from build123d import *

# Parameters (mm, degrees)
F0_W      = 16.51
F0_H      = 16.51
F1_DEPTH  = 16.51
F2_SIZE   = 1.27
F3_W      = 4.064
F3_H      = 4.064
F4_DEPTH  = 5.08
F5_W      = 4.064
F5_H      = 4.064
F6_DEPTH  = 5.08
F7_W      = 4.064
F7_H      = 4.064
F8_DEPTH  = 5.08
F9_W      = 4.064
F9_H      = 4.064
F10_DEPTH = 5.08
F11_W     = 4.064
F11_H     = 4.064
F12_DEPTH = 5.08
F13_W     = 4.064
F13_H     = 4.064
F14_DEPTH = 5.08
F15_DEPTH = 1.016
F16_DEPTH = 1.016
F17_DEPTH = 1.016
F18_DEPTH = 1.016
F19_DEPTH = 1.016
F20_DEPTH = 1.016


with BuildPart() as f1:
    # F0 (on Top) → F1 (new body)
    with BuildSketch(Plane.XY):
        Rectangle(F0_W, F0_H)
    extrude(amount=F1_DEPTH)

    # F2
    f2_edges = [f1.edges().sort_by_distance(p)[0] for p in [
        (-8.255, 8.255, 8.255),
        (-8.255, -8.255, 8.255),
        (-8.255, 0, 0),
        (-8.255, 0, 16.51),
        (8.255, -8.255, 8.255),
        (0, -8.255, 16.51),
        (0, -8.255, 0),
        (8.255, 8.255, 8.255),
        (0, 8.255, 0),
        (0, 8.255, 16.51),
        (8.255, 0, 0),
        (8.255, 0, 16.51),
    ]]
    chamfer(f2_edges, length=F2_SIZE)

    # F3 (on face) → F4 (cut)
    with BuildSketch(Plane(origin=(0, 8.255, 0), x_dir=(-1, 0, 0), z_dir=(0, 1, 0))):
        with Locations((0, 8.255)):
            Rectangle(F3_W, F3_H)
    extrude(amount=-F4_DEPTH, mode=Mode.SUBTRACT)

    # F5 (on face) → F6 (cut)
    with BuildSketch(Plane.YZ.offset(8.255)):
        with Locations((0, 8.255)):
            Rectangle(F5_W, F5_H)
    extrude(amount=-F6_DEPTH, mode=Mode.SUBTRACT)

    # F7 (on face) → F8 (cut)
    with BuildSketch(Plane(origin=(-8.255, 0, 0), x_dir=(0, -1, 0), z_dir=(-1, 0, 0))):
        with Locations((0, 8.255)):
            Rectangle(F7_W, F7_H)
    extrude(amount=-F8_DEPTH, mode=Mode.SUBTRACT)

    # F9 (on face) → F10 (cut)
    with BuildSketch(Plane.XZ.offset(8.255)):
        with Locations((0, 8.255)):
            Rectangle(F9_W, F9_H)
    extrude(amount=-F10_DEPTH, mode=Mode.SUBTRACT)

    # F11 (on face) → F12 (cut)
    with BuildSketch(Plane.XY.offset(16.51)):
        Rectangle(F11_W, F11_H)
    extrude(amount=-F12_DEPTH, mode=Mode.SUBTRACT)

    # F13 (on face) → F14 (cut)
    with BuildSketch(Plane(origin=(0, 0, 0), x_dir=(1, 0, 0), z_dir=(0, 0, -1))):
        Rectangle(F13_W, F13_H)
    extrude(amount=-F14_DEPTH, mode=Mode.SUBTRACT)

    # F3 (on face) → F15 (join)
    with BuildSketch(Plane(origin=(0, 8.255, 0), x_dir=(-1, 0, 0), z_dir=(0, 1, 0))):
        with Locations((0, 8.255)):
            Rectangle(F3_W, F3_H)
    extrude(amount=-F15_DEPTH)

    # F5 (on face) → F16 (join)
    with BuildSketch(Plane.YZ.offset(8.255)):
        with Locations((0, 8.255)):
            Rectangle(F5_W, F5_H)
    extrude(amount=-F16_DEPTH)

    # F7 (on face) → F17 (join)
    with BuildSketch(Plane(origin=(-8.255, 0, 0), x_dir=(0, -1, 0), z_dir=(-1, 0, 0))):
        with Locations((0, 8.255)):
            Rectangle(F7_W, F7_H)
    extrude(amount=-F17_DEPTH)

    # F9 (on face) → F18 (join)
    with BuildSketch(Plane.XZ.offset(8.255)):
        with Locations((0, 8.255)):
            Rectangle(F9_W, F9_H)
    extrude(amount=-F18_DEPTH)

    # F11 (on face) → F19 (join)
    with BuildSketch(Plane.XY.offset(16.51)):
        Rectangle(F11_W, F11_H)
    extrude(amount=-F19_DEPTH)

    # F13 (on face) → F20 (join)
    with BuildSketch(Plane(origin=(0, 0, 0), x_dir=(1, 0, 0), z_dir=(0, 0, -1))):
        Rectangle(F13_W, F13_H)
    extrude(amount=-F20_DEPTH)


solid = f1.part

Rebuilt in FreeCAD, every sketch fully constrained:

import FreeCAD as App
import Part
import Sketcher
Q = App.Units.Quantity

doc = App.newDocument("Part")
params = doc.addObject("Spreadsheet::Sheet", "Params")
for row, (alias, value) in enumerate([
    ("sketch1_width", "0.65 in"),
    ("pad1_length", "0.65 in"),
    ("chamfer_size", "0.05 in"),
    ("sketch2_width", "0.16 in"),
    ("pocket1_length", "0.2 in"),
    ("sketch3_width", "0.16 in"),
    ("pocket2_length", "0.2 in"),
    ("sketch4_width", "0.16 in"),
    ("pocket3_length", "0.2 in"),
    ("sketch5_width", "0.16 in"),
    ("pocket4_length", "0.2 in"),
    ("sketch6_width", "0.16 in"),
    ("pocket5_length", "0.2 in"),
    ("sketch7_width", "0.16 in"),
    ("pocket6_length", "0.2 in"),
    ("sketch8_width", "0.16 in"),
    ("pad2_length", "0.04 in"),
    ("sketch9_width", "0.16 in"),
    ("pad3_length", "0.04 in"),
    ("sketch10_width", "0.16 in"),
    ("pad4_length", "0.04 in"),
    ("sketch11_width", "0.16 in"),
    ("pad5_length", "0.04 in"),
    ("sketch12_width", "0.16 in"),
    ("pad6_length", "0.04 in"),
    ("sketch13_width", "0.16 in"),
    ("pad7_length", "0.04 in"),
], start=1):
    params.set(f"A{row}", alias)
    params.set(f"B{row}", "=" + value)
    params.setAlias(f"B{row}", alias)

body = doc.addObject("PartDesign::Body", "Body")

# Sketch on XY plane
sketch1 = body.newObject("Sketcher::SketchObject", "Sketch")
sketch1.AttachmentSupport = (doc.getObject("XY_Plane"), [""])
sketch1.MapMode = "FlatFace"
sketch1.addGeometry([
    Part.LineSegment(App.Vector(-8, 8, 0), App.Vector(-8, -8, 0)),
    Part.LineSegment(App.Vector(-8, -8, 0), App.Vector(8, -8, 0)),
    Part.LineSegment(App.Vector(8, -8, 0), App.Vector(8, 8, 0)),
    Part.LineSegment(App.Vector(8, 8, 0), App.Vector(-8, 8, 0)),
], False)
sketch1.addConstraint([
    Sketcher.Constraint("Coincident", 0, 2, 1, 1),
    Sketcher.Constraint("Coincident", 1, 2, 2, 1),
    Sketcher.Constraint("Coincident", 2, 2, 3, 1),
    Sketcher.Constraint("Coincident", 3, 2, 0, 1),
    Sketcher.Constraint("Vertical", 0),
    Sketcher.Constraint("Horizontal", 1),
    Sketcher.Constraint("Vertical", 2),
    Sketcher.Constraint("Horizontal", 3),
    Sketcher.Constraint("Symmetric", 0, 2, 2, 2, -1, 1),
    Sketcher.Constraint("Equal", 3, 0),
    Sketcher.Constraint("DistanceX", 1, 1, 1, 2, Q("0.65 in")),
])
sketch1.setExpression("Constraints[10]", "Params.sketch1_width")
pad1 = body.newObject("PartDesign::Pad", "Pad")
pad1.Profile = sketch1
pad1.setExpression("Length", "Params.pad1_length")
doc.recompute()

chamfer = body.newObject("PartDesign::Chamfer", "Chamfer")
chamfer.Base = (pad1, ["Edge1"])
chamfer.UseAllEdges = True
chamfer.setExpression("Size", "Params.chamfer_size")

# Sketch on XZ plane
sketch2 = body.newObject("Sketcher::SketchObject", "Sketch001")
sketch2.AttachmentSupport = (doc.getObject("XZ_Plane"), [""])
sketch2.MapMode = "FlatFace"
sketch2.AttachmentOffset = App.Placement(App.Vector(0, 0, -0.325 * 25.4), App.Rotation())
sketch2.addGeometry([
    Part.LineSegment(App.Vector(2, 10.3, 0), App.Vector(2, 6.2, 0)),
    Part.LineSegment(App.Vector(2, 6.2, 0), App.Vector(-2, 6.2, 0)),
    Part.LineSegment(App.Vector(-2, 6.2, 0), App.Vector(-2, 10.3, 0)),
    Part.LineSegment(App.Vector(-2, 10.3, 0), App.Vector(2, 10.3, 0)),
], False)
sketch2.addConstraint([
    Sketcher.Constraint("Coincident", 0, 2, 1, 1),
    Sketcher.Constraint("Coincident", 1, 2, 2, 1),
    Sketcher.Constraint("Coincident", 2, 2, 3, 1),
    Sketcher.Constraint("Coincident", 3, 2, 0, 1),
    Sketcher.Constraint("Vertical", 0),
    Sketcher.Constraint("Horizontal", 1),
    Sketcher.Constraint("Vertical", 2),
    Sketcher.Constraint("Horizontal", 3),
    Sketcher.Constraint("Equal", 3, 0),
    Sketcher.Constraint("DistanceX", 1, 2, 1, 1, Q("0.16 in")),
    Sketcher.Constraint("DistanceX", -1, 1, 0, 2, Q("0.08 in")),
    Sketcher.Constraint("DistanceY", -1, 1, 0, 2, Q("0.245 in")),
])
sketch2.setExpression("Constraints[9]", "Params.sketch2_width")
pocket1 = body.newObject("PartDesign::Pocket", "Pocket")
pocket1.Profile = sketch2
pocket1.setExpression("Length", "Params.pocket1_length")
pocket1.Reversed = True

# Sketch on YZ plane
sketch3 = body.newObject("Sketcher::SketchObject", "Sketch002")
sketch3.AttachmentSupport = (doc.getObject("YZ_Plane"), [""])
sketch3.MapMode = "FlatFace"
sketch3.AttachmentOffset = App.Placement(App.Vector(0, 0, 0.325 * 25.4), App.Rotation())
sketch3.addGeometry([
    Part.LineSegment(App.Vector(-2, 10.3, 0), App.Vector(-2, 6.2, 0)),
    Part.LineSegment(App.Vector(-2, 6.2, 0), App.Vector(2, 6.2, 0)),
    Part.LineSegment(App.Vector(2, 6.2, 0), App.Vector(2, 10.3, 0)),
    Part.LineSegment(App.Vector(2, 10.3, 0), App.Vector(-2, 10.3, 0)),
], False)
sketch3.addConstraint([
    Sketcher.Constraint("Coincident", 0, 2, 1, 1),
    Sketcher.Constraint("Coincident", 1, 2, 2, 1),
    Sketcher.Constraint("Coincident", 2, 2, 3, 1),
    Sketcher.Constraint("Coincident", 3, 2, 0, 1),
    Sketcher.Constraint("Vertical", 0),
    Sketcher.Constraint("Horizontal", 1),
    Sketcher.Constraint("Vertical", 2),
    Sketcher.Constraint("Horizontal", 3),
    Sketcher.Constraint("Equal", 3, 0),
    Sketcher.Constraint("DistanceX", 1, 1, 1, 2, Q("0.16 in")),
    Sketcher.Constraint("DistanceX", 0, 2, -1, 1, Q("0.08 in")),
    Sketcher.Constraint("DistanceY", -1, 1, 0, 2, Q("0.245 in")),
])
sketch3.setExpression("Constraints[9]", "Params.sketch3_width")
pocket2 = body.newObject("PartDesign::Pocket", "Pocket001")
pocket2.Profile = sketch3
pocket2.setExpression("Length", "Params.pocket2_length")

# Sketch on YZ plane
sketch4 = body.newObject("Sketcher::SketchObject", "Sketch003")
sketch4.AttachmentSupport = (doc.getObject("YZ_Plane"), [""])
sketch4.MapMode = "FlatFace"
sketch4.AttachmentOffset = App.Placement(App.Vector(0, 0, -0.325 * 25.4), App.Rotation())
sketch4.addGeometry([
    Part.LineSegment(App.Vector(2, 10.3, 0), App.Vector(2, 6.2, 0)),
    Part.LineSegment(App.Vector(2, 6.2, 0), App.Vector(-2, 6.2, 0)),
    Part.LineSegment(App.Vector(-2, 6.2, 0), App.Vector(-2, 10.3, 0)),
    Part.LineSegment(App.Vector(-2, 10.3, 0), App.Vector(2, 10.3, 0)),
], False)
sketch4.addConstraint([
    Sketcher.Constraint("Coincident", 0, 2, 1, 1),
    Sketcher.Constraint("Coincident", 1, 2, 2, 1),
    Sketcher.Constraint("Coincident", 2, 2, 3, 1),
    Sketcher.Constraint("Coincident", 3, 2, 0, 1),
    Sketcher.Constraint("Vertical", 0),
    Sketcher.Constraint("Horizontal", 1),
    Sketcher.Constraint("Vertical", 2),
    Sketcher.Constraint("Horizontal", 3),
    Sketcher.Constraint("Equal", 3, 0),
    Sketcher.Constraint("DistanceX", 1, 2, 1, 1, Q("0.16 in")),
    Sketcher.Constraint("DistanceX", -1, 1, 0, 2, Q("0.08 in")),
    Sketcher.Constraint("DistanceY", -1, 1, 0, 2, Q("0.245 in")),
])
sketch4.setExpression("Constraints[9]", "Params.sketch4_width")
pocket3 = body.newObject("PartDesign::Pocket", "Pocket002")
pocket3.Profile = sketch4
pocket3.setExpression("Length", "Params.pocket3_length")
pocket3.Reversed = True

# Sketch on XZ plane
sketch5 = body.newObject("Sketcher::SketchObject", "Sketch004")
sketch5.AttachmentSupport = (doc.getObject("XZ_Plane"), [""])
sketch5.MapMode = "FlatFace"
sketch5.AttachmentOffset = App.Placement(App.Vector(0, 0, 0.325 * 25.4), App.Rotation())
sketch5.addGeometry([
    Part.LineSegment(App.Vector(-2, 10.3, 0), App.Vector(-2, 6.2, 0)),
    Part.LineSegment(App.Vector(-2, 6.2, 0), App.Vector(2, 6.2, 0)),
    Part.LineSegment(App.Vector(2, 6.2, 0), App.Vector(2, 10.3, 0)),
    Part.LineSegment(App.Vector(2, 10.3, 0), App.Vector(-2, 10.3, 0)),
], False)
sketch5.addConstraint([
    Sketcher.Constraint("Coincident", 0, 2, 1, 1),
    Sketcher.Constraint("Coincident", 1, 2, 2, 1),
    Sketcher.Constraint("Coincident", 2, 2, 3, 1),
    Sketcher.Constraint("Coincident", 3, 2, 0, 1),
    Sketcher.Constraint("Vertical", 0),
    Sketcher.Constraint("Horizontal", 1),
    Sketcher.Constraint("Vertical", 2),
    Sketcher.Constraint("Horizontal", 3),
    Sketcher.Constraint("Equal", 3, 0),
    Sketcher.Constraint("DistanceX", 1, 1, 1, 2, Q("0.16 in")),
    Sketcher.Constraint("DistanceX", 0, 2, -1, 1, Q("0.08 in")),
    Sketcher.Constraint("DistanceY", -1, 1, 0, 2, Q("0.245 in")),
])
sketch5.setExpression("Constraints[9]", "Params.sketch5_width")
pocket4 = body.newObject("PartDesign::Pocket", "Pocket003")
pocket4.Profile = sketch5
pocket4.setExpression("Length", "Params.pocket4_length")

# Sketch on XY plane
sketch6 = body.newObject("Sketcher::SketchObject", "Sketch005")
sketch6.AttachmentSupport = (doc.getObject("XY_Plane"), [""])
sketch6.MapMode = "FlatFace"
sketch6.AttachmentOffset = App.Placement(App.Vector(0, 0, 0.65 * 25.4), App.Rotation())
sketch6.addGeometry([
    Part.LineSegment(App.Vector(-2, 2, 0), App.Vector(-2, -2, 0)),
    Part.LineSegment(App.Vector(-2, -2, 0), App.Vector(2, -2, 0)),
    Part.LineSegment(App.Vector(2, -2, 0), App.Vector(2, 2, 0)),
    Part.LineSegment(App.Vector(2, 2, 0), App.Vector(-2, 2, 0)),
], False)
sketch6.addConstraint([
    Sketcher.Constraint("Coincident", 0, 2, 1, 1),
    Sketcher.Constraint("Coincident", 1, 2, 2, 1),
    Sketcher.Constraint("Coincident", 2, 2, 3, 1),
    Sketcher.Constraint("Coincident", 3, 2, 0, 1),
    Sketcher.Constraint("Vertical", 0),
    Sketcher.Constraint("Horizontal", 1),
    Sketcher.Constraint("Vertical", 2),
    Sketcher.Constraint("Horizontal", 3),
    Sketcher.Constraint("Symmetric", 0, 2, 2, 2, -1, 1),
    Sketcher.Constraint("Equal", 3, 0),
    Sketcher.Constraint("DistanceX", 1, 1, 1, 2, Q("0.16 in")),
])
sketch6.setExpression("Constraints[10]", "Params.sketch6_width")
pocket5 = body.newObject("PartDesign::Pocket", "Pocket004")
pocket5.Profile = sketch6
pocket5.setExpression("Length", "Params.pocket5_length")

# Sketch on XY plane
sketch7 = body.newObject("Sketcher::SketchObject", "Sketch006")
sketch7.AttachmentSupport = (doc.getObject("XY_Plane"), [""])
sketch7.MapMode = "FlatFace"
sketch7.addGeometry([
    Part.LineSegment(App.Vector(-2, -2, 0), App.Vector(-2, 2, 0)),
    Part.LineSegment(App.Vector(-2, 2, 0), App.Vector(2, 2, 0)),
    Part.LineSegment(App.Vector(2, 2, 0), App.Vector(2, -2, 0)),
    Part.LineSegment(App.Vector(2, -2, 0), App.Vector(-2, -2, 0)),
], False)
sketch7.addConstraint([
    Sketcher.Constraint("Coincident", 0, 2, 1, 1),
    Sketcher.Constraint("Coincident", 1, 2, 2, 1),
    Sketcher.Constraint("Coincident", 2, 2, 3, 1),
    Sketcher.Constraint("Coincident", 3, 2, 0, 1),
    Sketcher.Constraint("Vertical", 0),
    Sketcher.Constraint("Horizontal", 1),
    Sketcher.Constraint("Vertical", 2),
    Sketcher.Constraint("Horizontal", 3),
    Sketcher.Constraint("Symmetric", 0, 2, 2, 2, -1, 1),
    Sketcher.Constraint("Equal", 3, 0),
    Sketcher.Constraint("DistanceX", 1, 1, 1, 2, Q("0.16 in")),
])
sketch7.setExpression("Constraints[10]", "Params.sketch7_width")
pocket6 = body.newObject("PartDesign::Pocket", "Pocket005")
pocket6.Profile = sketch7
pocket6.setExpression("Length", "Params.pocket6_length")
pocket6.Reversed = True

# Sketch on XZ plane
sketch8 = body.newObject("Sketcher::SketchObject", "Sketch007")
sketch8.AttachmentSupport = (doc.getObject("XZ_Plane"), [""])
sketch8.MapMode = "FlatFace"
sketch8.AttachmentOffset = App.Placement(App.Vector(0, 0, -0.325 * 25.4), App.Rotation())
sketch8.addGeometry([
    Part.LineSegment(App.Vector(2, 10.3, 0), App.Vector(2, 6.2, 0)),
    Part.LineSegment(App.Vector(2, 6.2, 0), App.Vector(-2, 6.2, 0)),
    Part.LineSegment(App.Vector(-2, 6.2, 0), App.Vector(-2, 10.3, 0)),
    Part.LineSegment(App.Vector(-2, 10.3, 0), App.Vector(2, 10.3, 0)),
], False)
sketch8.addConstraint([
    Sketcher.Constraint("Coincident", 0, 2, 1, 1),
    Sketcher.Constraint("Coincident", 1, 2, 2, 1),
    Sketcher.Constraint("Coincident", 2, 2, 3, 1),
    Sketcher.Constraint("Coincident", 3, 2, 0, 1),
    Sketcher.Constraint("Vertical", 0),
    Sketcher.Constraint("Horizontal", 1),
    Sketcher.Constraint("Vertical", 2),
    Sketcher.Constraint("Horizontal", 3),
    Sketcher.Constraint("Equal", 3, 0),
    Sketcher.Constraint("DistanceX", 1, 2, 1, 1, Q("0.16 in")),
    Sketcher.Constraint("DistanceX", -1, 1, 0, 2, Q("0.08 in")),
    Sketcher.Constraint("DistanceY", -1, 1, 0, 2, Q("0.245 in")),
])
sketch8.setExpression("Constraints[9]", "Params.sketch8_width")
pad2 = body.newObject("PartDesign::Pad", "Pad001")
pad2.Profile = sketch8
pad2.setExpression("Length", "Params.pad2_length")

# Sketch on YZ plane
sketch9 = body.newObject("Sketcher::SketchObject", "Sketch008")
sketch9.AttachmentSupport = (doc.getObject("YZ_Plane"), [""])
sketch9.MapMode = "FlatFace"
sketch9.AttachmentOffset = App.Placement(App.Vector(0, 0, 0.325 * 25.4), App.Rotation())
sketch9.addGeometry([
    Part.LineSegment(App.Vector(-2, 10.3, 0), App.Vector(-2, 6.2, 0)),
    Part.LineSegment(App.Vector(-2, 6.2, 0), App.Vector(2, 6.2, 0)),
    Part.LineSegment(App.Vector(2, 6.2, 0), App.Vector(2, 10.3, 0)),
    Part.LineSegment(App.Vector(2, 10.3, 0), App.Vector(-2, 10.3, 0)),
], False)
sketch9.addConstraint([
    Sketcher.Constraint("Coincident", 0, 2, 1, 1),
    Sketcher.Constraint("Coincident", 1, 2, 2, 1),
    Sketcher.Constraint("Coincident", 2, 2, 3, 1),
    Sketcher.Constraint("Coincident", 3, 2, 0, 1),
    Sketcher.Constraint("Vertical", 0),
    Sketcher.Constraint("Horizontal", 1),
    Sketcher.Constraint("Vertical", 2),
    Sketcher.Constraint("Horizontal", 3),
    Sketcher.Constraint("Equal", 3, 0),
    Sketcher.Constraint("DistanceX", 1, 1, 1, 2, Q("0.16 in")),
    Sketcher.Constraint("DistanceX", 0, 2, -1, 1, Q("0.08 in")),
    Sketcher.Constraint("DistanceY", -1, 1, 0, 2, Q("0.245 in")),
])
sketch9.setExpression("Constraints[9]", "Params.sketch9_width")
pad3 = body.newObject("PartDesign::Pad", "Pad002")
pad3.Profile = sketch9
pad3.setExpression("Length", "Params.pad3_length")
pad3.Reversed = True

# Sketch on YZ plane
sketch10 = body.newObject("Sketcher::SketchObject", "Sketch009")
sketch10.AttachmentSupport = (doc.getObject("YZ_Plane"), [""])
sketch10.MapMode = "FlatFace"
sketch10.AttachmentOffset = App.Placement(App.Vector(0, 0, -0.325 * 25.4), App.Rotation())
sketch10.addGeometry([
    Part.LineSegment(App.Vector(2, 10.3, 0), App.Vector(2, 6.2, 0)),
    Part.LineSegment(App.Vector(2, 6.2, 0), App.Vector(-2, 6.2, 0)),
    Part.LineSegment(App.Vector(-2, 6.2, 0), App.Vector(-2, 10.3, 0)),
    Part.LineSegment(App.Vector(-2, 10.3, 0), App.Vector(2, 10.3, 0)),
], False)
sketch10.addConstraint([
    Sketcher.Constraint("Coincident", 0, 2, 1, 1),
    Sketcher.Constraint("Coincident", 1, 2, 2, 1),
    Sketcher.Constraint("Coincident", 2, 2, 3, 1),
    Sketcher.Constraint("Coincident", 3, 2, 0, 1),
    Sketcher.Constraint("Vertical", 0),
    Sketcher.Constraint("Horizontal", 1),
    Sketcher.Constraint("Vertical", 2),
    Sketcher.Constraint("Horizontal", 3),
    Sketcher.Constraint("Equal", 3, 0),
    Sketcher.Constraint("DistanceX", 1, 2, 1, 1, Q("0.16 in")),
    Sketcher.Constraint("DistanceX", -1, 1, 0, 2, Q("0.08 in")),
    Sketcher.Constraint("DistanceY", -1, 1, 0, 2, Q("0.245 in")),
])
sketch10.setExpression("Constraints[9]", "Params.sketch10_width")
pad4 = body.newObject("PartDesign::Pad", "Pad003")
pad4.Profile = sketch10
pad4.setExpression("Length", "Params.pad4_length")

# Sketch on XZ plane
sketch11 = body.newObject("Sketcher::SketchObject", "Sketch010")
sketch11.AttachmentSupport = (doc.getObject("XZ_Plane"), [""])
sketch11.MapMode = "FlatFace"
sketch11.AttachmentOffset = App.Placement(App.Vector(0, 0, 0.325 * 25.4), App.Rotation())
sketch11.addGeometry([
    Part.LineSegment(App.Vector(-2, 10.3, 0), App.Vector(-2, 6.2, 0)),
    Part.LineSegment(App.Vector(-2, 6.2, 0), App.Vector(2, 6.2, 0)),
    Part.LineSegment(App.Vector(2, 6.2, 0), App.Vector(2, 10.3, 0)),
    Part.LineSegment(App.Vector(2, 10.3, 0), App.Vector(-2, 10.3, 0)),
], False)
sketch11.addConstraint([
    Sketcher.Constraint("Coincident", 0, 2, 1, 1),
    Sketcher.Constraint("Coincident", 1, 2, 2, 1),
    Sketcher.Constraint("Coincident", 2, 2, 3, 1),
    Sketcher.Constraint("Coincident", 3, 2, 0, 1),
    Sketcher.Constraint("Vertical", 0),
    Sketcher.Constraint("Horizontal", 1),
    Sketcher.Constraint("Vertical", 2),
    Sketcher.Constraint("Horizontal", 3),
    Sketcher.Constraint("Equal", 3, 0),
    Sketcher.Constraint("DistanceX", 1, 1, 1, 2, Q("0.16 in")),
    Sketcher.Constraint("DistanceX", 0, 2, -1, 1, Q("0.08 in")),
    Sketcher.Constraint("DistanceY", -1, 1, 0, 2, Q("0.245 in")),
])
sketch11.setExpression("Constraints[9]", "Params.sketch11_width")
pad5 = body.newObject("PartDesign::Pad", "Pad004")
pad5.Profile = sketch11
pad5.setExpression("Length", "Params.pad5_length")
pad5.Reversed = True

# Sketch on XY plane
sketch12 = body.newObject("Sketcher::SketchObject", "Sketch011")
sketch12.AttachmentSupport = (doc.getObject("XY_Plane"), [""])
sketch12.MapMode = "FlatFace"
sketch12.AttachmentOffset = App.Placement(App.Vector(0, 0, 0.65 * 25.4), App.Rotation())
sketch12.addGeometry([
    Part.LineSegment(App.Vector(-2, 2, 0), App.Vector(-2, -2, 0)),
    Part.LineSegment(App.Vector(-2, -2, 0), App.Vector(2, -2, 0)),
    Part.LineSegment(App.Vector(2, -2, 0), App.Vector(2, 2, 0)),
    Part.LineSegment(App.Vector(2, 2, 0), App.Vector(-2, 2, 0)),
], False)
sketch12.addConstraint([
    Sketcher.Constraint("Coincident", 0, 2, 1, 1),
    Sketcher.Constraint("Coincident", 1, 2, 2, 1),
    Sketcher.Constraint("Coincident", 2, 2, 3, 1),
    Sketcher.Constraint("Coincident", 3, 2, 0, 1),
    Sketcher.Constraint("Vertical", 0),
    Sketcher.Constraint("Horizontal", 1),
    Sketcher.Constraint("Vertical", 2),
    Sketcher.Constraint("Horizontal", 3),
    Sketcher.Constraint("Symmetric", 0, 2, 2, 2, -1, 1),
    Sketcher.Constraint("Equal", 3, 0),
    Sketcher.Constraint("DistanceX", 1, 1, 1, 2, Q("0.16 in")),
])
sketch12.setExpression("Constraints[10]", "Params.sketch12_width")
pad6 = body.newObject("PartDesign::Pad", "Pad005")
pad6.Profile = sketch12
pad6.setExpression("Length", "Params.pad6_length")
pad6.Reversed = True

# Sketch on XY plane
sketch13 = body.newObject("Sketcher::SketchObject", "Sketch012")
sketch13.AttachmentSupport = (doc.getObject("XY_Plane"), [""])
sketch13.MapMode = "FlatFace"
sketch13.addGeometry([
    Part.LineSegment(App.Vector(-2, -2, 0), App.Vector(-2, 2, 0)),
    Part.LineSegment(App.Vector(-2, 2, 0), App.Vector(2, 2, 0)),
    Part.LineSegment(App.Vector(2, 2, 0), App.Vector(2, -2, 0)),
    Part.LineSegment(App.Vector(2, -2, 0), App.Vector(-2, -2, 0)),
], False)
sketch13.addConstraint([
    Sketcher.Constraint("Coincident", 0, 2, 1, 1),
    Sketcher.Constraint("Coincident", 1, 2, 2, 1),
    Sketcher.Constraint("Coincident", 2, 2, 3, 1),
    Sketcher.Constraint("Coincident", 3, 2, 0, 1),
    Sketcher.Constraint("Vertical", 0),
    Sketcher.Constraint("Horizontal", 1),
    Sketcher.Constraint("Vertical", 2),
    Sketcher.Constraint("Horizontal", 3),
    Sketcher.Constraint("Symmetric", 0, 2, 2, 2, -1, 1),
    Sketcher.Constraint("Equal", 3, 0),
    Sketcher.Constraint("DistanceX", 1, 1, 1, 2, Q("0.16 in")),
])
sketch13.setExpression("Constraints[10]", "Params.sketch13_width")
pad7 = body.newObject("PartDesign::Pad", "Pad006")
pad7.Profile = sketch13
pad7.setExpression("Length", "Params.pad7_length")

doc.recompute()
